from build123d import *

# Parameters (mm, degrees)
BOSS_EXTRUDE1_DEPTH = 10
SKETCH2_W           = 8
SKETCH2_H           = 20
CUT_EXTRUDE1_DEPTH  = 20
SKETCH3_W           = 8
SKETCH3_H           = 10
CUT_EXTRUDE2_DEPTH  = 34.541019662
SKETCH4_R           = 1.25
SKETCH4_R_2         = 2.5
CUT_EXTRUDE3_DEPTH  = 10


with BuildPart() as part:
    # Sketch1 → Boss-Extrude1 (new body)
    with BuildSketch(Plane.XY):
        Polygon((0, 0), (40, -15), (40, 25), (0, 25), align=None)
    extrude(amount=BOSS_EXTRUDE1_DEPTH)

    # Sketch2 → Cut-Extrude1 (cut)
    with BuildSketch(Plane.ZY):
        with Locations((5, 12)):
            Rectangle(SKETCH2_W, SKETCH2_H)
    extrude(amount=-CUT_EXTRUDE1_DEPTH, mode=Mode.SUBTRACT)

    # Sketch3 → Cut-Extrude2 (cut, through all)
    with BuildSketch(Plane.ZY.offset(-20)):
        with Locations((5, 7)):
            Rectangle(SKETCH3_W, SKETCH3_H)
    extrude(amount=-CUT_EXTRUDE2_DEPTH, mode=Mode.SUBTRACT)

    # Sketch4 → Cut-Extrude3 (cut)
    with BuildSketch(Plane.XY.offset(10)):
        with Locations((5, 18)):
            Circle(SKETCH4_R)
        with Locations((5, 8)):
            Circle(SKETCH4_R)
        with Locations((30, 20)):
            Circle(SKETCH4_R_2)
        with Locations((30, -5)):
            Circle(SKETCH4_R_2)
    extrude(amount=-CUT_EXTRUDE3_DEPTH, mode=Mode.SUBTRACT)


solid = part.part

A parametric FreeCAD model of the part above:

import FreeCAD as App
import Part
import Sketcher
from FreeCAD import Vector


def add_polygon(sketch, points):
    """Adds a closed chain of lines whose ends are joined by coincident constraints."""
    first, n = sketch.GeometryCount, len(points)
    for a, b in zip(points, points[1:] + points[:1]):
        sketch.addGeometry(Part.LineSegment(App.Vector(*a, 0), App.Vector(*b, 0)), False)
    for i in range(n):
        sketch.addConstraint(Sketcher.Constraint("Coincident", first + i, 2, first + (i + 1) % n, 1))

doc = App.newDocument("Part")
body = doc.addObject("PartDesign::Body", "Body")

# Sketch on XY plane
sketch1 = body.newObject("Sketcher::SketchObject", "Sketch")
sketch1.AttachmentSupport = (doc.getObject("XY_Plane"), [""])
sketch1.MapMode = "FlatFace"
add_polygon(sketch1, [(0, 0), (40, -15), (40, 25), (0, 25)])  # lines 0-3
sketch1.addConstraint(Sketcher.Constraint("Vertical", 1))
sketch1.addConstraint(Sketcher.Constraint("Horizontal", 2))
sketch1.addConstraint(Sketcher.Constraint("Vertical", 3))
sketch1.addConstraint(Sketcher.Constraint("Coincident", 3, 2, -1, 1))
sketch1.addConstraint(Sketcher.Constraint("Equal", 2, 1))
sketch1.addConstraint(Sketcher.Constraint("DistanceX", 2, 2, 2, 1, 40.0))
sketch1.addConstraint(Sketcher.Constraint("DistanceY", 3, 2, 3, 1, 25.0))
pad1 = body.newObject("PartDesign::Pad", "Pad")
pad1.Profile = sketch1
pad1.Length = 10

# Sketch on YZ plane
sketch2 = body.newObject("Sketcher::SketchObject", "Sketch001")
sketch2.AttachmentSupport = (doc.getObject("YZ_Plane"), [""])
sketch2.MapMode = "FlatFace"
add_polygon(sketch2, [(22, 1), (2, 1), (2, 9), (22, 9)])  # lines 0-3
sketch2.addConstraint(Sketcher.Constraint("Horizontal", 0))
sketch2.addConstraint(Sketcher.Constraint("Vertical", 1))
sketch2.addConstraint(Sketcher.Constraint("Horizontal", 2))
sketch2.addConstraint(Sketcher.Constraint("Vertical", 3))
sketch2.addConstraint(Sketcher.Constraint("DistanceX", 0, 2, 0, 1, 20.0))
sketch2.addConstraint(Sketcher.Constraint("DistanceY", 1, 1, 1, 2, 8.0))
sketch2.addConstraint(Sketcher.Constraint("DistanceX", -1, 1, 0, 2, 2.0))
sketch2.addConstraint(Sketcher.Constraint("DistanceY", -1, 1, 0, 2, 1.0))
pocket1 = body.newObject("PartDesign::Pocket", "Pocket")
pocket1.Profile = sketch2
pocket1.Length = 20
pocket1.Reversed = True

# Sketch on YZ plane
sketch3 = body.newObject("Sketcher::SketchObject", "Sketch002")
sketch3.AttachmentSupport = (doc.getObject("YZ_Plane"), [""])
sketch3.MapMode = "FlatFace"
sketch3.AttachmentOffset = App.Placement(Vector(0, 0, 20), App.Rotation())
add_polygon(sketch3, [(12, 1), (2, 1), (2, 9), (12, 9)])  # lines 0-3
sketch3.addConstraint(Sketcher.Constraint("Horizontal", 0))
sketch3.addConstraint(Sketcher.Constraint("Vertical", 1))
sketch3.addConstraint(Sketcher.Constraint("Horizontal", 2))
sketch3.addConstraint(Sketcher.Constraint("Vertical", 3))
sketch3.addConstraint(Sketcher.Constraint("DistanceX", 0, 2, 0, 1, 10.0))
sketch3.addConstraint(Sketcher.Constraint("DistanceY", 1, 1, 1, 2, 8.0))
sketch3.addConstraint(Sketcher.Constraint("DistanceX", -1, 1, 0, 2, 2.0))
sketch3.addConstraint(Sketcher.Constraint("DistanceY", -1, 1, 0, 2, 1.0))
pocket2 = body.newObject("PartDesign::Pocket", "Pocket001")
pocket2.Profile = sketch3
pocket2.Type = "ThroughAll"
pocket2.Reversed = True

# Sketch on XY plane
sketch4 = body.newObject("Sketcher::SketchObject", "Sketch003")
sketch4.AttachmentSupport = (doc.getObject("XY_Plane"), [""])
sketch4.MapMode = "FlatFace"
sketch4.AttachmentOffset = App.Placement(Vector(0, 0, 10), App.Rotation())
sketch4.addGeometry(Part.Circle(Vector(5, 18, 0), Vector(0, 0, 1), 1.2), False)
sketch4.addGeometry(Part.Circle(Vector(5, 8, 0), Vector(0, 0, 1), 1.2), False)
sketch4.addGeometry(Part.Circle(Vector(30, 20, 0), Vector(0, 0, 1), 2.5), False)
sketch4.addGeometry(Part.Circle(Vector(30, -5, 0), Vector(0, 0, 1), 2.5), False)
sketch4.addConstraint(Sketcher.Constraint("Equal", 0, 1))
sketch4.addConstraint(Sketcher.Constraint("Equal", 2, 3))
sketch4.addConstraint(Sketcher.Constraint("Vertical", 0, 3, 1, 3))
sketch4.addConstraint(Sketcher.Constraint("Vertical", 2, 3, 3, 3))
sketch4.addConstraint(Sketcher.Constraint("Diameter", 2, 5.0))
sketch4.addConstraint(Sketcher.Constraint("Diameter", 0, 2.5))
sketch4.addConstraint(Sketcher.Constraint("DistanceX", -1, 1, 0, 3, 5.0))
sketch4.addConstraint(Sketcher.Constraint("DistanceY", -1, 1, 0, 3, 18.0))
sketch4.addConstraint(Sketcher.Constraint("DistanceY", -1, 1, 1, 3, 8.0))
sketch4.addConstraint(Sketcher.Constraint("DistanceX", -1, 1, 2, 3, 30.0))
sketch4.addConstraint(Sketcher.Constraint("DistanceY", -1, 1, 2, 3, 20.0))
sketch4.addConstraint(Sketcher.Constraint("DistanceY", 3, 3, -1, 1, 5.0))
pocket3 = body.newObject("PartDesign::Pocket", "Pocket002")
pocket3.Profile = sketch4
pocket3.Length = 10

doc.recompute()
